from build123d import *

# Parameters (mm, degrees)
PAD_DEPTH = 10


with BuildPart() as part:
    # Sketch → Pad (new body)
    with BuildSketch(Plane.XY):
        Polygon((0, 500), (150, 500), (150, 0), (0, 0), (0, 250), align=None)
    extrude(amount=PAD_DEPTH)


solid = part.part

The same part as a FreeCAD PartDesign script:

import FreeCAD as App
import Part
import Sketcher
from FreeCAD import Vector

doc = App.newDocument("Part")
body = doc.addObject("PartDesign::Body", "Body")

sketch1 = body.newObject("Sketcher::SketchObject", "Sketch")
sketch1.AttachmentSupport = (doc.getObject("XY_Plane"), [""])
sketch1.MapMode = "FlatFace"
sketch1.addGeometry([
    Part.LineSegment(Vector(150, 500, 0), Vector(0, 500, 0)),
    Part.LineSegment(Vector(0, 500, 0), Vector(0, 0, 0)),
    Part.LineSegment(Vector(0, 0, 0), Vector(150, 0, 0)),
    Part.LineSegment(Vector(150, 0, 0), Vector(150, 500, 0)),
], False)
sketch1.addConstraint([
    Sketcher.Constraint("Coincident", 0, 2, 1, 1),
    Sketcher.Constraint("Coincident", 1, 2, 2, 1),
    Sketcher.Constraint("Coincident", 2, 2, 3, 1),
    Sketcher.Constraint("Coincident", 3, 2, 0, 1),
    Sketcher.Constraint("Horizontal", 0),
    Sketcher.Constraint("Vertical", 1),
    Sketcher.Constraint("Horizontal", 2),
    Sketcher.Constraint("Vertical", 3),
    Sketcher.Constraint("Coincident", 1, 2, -1, 1),
    Sketcher.Constraint("DistanceX", 0, 2, 0, 1, 150.0),
    Sketcher.Constraint("DistanceY", 1, 2, 1, 1, 500.0),
])
pad1 = body.newObject("PartDesign::Pad", "Pad")
pad1.Profile = sketch1
pad1.Length = 10

doc.recompute()
